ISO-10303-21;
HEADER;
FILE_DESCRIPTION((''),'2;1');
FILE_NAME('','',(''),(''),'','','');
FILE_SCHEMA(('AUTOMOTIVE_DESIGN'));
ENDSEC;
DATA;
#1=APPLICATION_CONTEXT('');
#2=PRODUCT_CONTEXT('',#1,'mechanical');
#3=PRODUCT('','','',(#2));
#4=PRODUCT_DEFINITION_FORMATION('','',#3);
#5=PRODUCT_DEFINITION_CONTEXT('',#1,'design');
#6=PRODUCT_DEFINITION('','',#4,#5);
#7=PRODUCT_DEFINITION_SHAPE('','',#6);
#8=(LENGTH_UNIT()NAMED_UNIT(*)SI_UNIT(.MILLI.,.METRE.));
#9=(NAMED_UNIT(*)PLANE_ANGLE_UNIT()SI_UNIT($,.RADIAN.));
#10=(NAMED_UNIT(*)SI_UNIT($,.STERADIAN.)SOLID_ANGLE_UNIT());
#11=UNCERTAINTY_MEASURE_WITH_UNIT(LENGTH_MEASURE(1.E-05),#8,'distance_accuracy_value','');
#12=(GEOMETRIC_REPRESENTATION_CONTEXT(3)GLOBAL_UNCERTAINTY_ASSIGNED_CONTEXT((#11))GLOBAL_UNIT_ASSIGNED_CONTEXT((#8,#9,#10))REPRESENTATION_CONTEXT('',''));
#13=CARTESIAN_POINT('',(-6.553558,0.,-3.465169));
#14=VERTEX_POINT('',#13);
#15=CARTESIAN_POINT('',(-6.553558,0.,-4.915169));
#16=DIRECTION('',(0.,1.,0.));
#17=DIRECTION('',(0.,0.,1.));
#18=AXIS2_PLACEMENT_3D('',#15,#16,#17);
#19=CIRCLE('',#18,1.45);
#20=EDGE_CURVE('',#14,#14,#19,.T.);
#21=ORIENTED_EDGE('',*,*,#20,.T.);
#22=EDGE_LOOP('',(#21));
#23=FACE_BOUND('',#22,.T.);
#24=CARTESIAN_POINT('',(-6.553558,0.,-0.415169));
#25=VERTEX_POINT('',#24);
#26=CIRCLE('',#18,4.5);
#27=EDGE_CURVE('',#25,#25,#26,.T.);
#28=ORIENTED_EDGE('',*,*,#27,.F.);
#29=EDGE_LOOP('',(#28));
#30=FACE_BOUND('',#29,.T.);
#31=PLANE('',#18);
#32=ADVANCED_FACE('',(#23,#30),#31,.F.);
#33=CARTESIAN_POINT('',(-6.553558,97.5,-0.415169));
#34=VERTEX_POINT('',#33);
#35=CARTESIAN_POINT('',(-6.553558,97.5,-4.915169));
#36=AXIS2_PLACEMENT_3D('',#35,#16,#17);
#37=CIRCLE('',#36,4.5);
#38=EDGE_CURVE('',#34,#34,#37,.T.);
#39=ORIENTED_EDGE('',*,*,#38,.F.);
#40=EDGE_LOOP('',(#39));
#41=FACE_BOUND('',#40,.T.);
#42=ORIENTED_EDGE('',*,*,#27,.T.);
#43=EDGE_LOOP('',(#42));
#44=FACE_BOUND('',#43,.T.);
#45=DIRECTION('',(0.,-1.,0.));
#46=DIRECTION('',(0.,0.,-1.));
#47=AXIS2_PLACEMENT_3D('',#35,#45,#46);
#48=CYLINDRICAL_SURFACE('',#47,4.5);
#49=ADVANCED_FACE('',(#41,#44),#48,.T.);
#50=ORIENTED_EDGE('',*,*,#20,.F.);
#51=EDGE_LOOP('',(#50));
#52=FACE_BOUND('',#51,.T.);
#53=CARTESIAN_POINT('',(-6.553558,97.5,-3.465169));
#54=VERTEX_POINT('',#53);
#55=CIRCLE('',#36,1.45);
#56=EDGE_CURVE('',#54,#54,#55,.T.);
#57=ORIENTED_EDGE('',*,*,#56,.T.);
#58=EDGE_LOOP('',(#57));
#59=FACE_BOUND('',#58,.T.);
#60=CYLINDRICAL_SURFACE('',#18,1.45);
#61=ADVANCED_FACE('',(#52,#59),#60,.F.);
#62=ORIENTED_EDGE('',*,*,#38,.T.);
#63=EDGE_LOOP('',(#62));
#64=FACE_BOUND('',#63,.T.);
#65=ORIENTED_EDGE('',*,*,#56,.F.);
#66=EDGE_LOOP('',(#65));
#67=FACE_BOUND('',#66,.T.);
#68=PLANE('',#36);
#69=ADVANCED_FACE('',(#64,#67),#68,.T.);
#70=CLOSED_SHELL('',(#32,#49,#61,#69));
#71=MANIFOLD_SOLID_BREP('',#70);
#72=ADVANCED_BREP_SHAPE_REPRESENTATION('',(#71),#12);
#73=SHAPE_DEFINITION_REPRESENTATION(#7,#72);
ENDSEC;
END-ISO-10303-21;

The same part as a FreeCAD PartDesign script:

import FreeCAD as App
import Part
import Sketcher
from FreeCAD import Vector
Q = App.Units.Quantity

doc = App.newDocument("Part")
body = doc.addObject("PartDesign::Body", "Body")

sketch1 = doc.addObject("Sketcher::SketchObject", "Sketch")
body.addObject(sketch1)
sketch1.AttachmentSupport = (doc.XZ_Plane, [""])
sketch1.MapMode = "FlatFace"
sketch1.addGeometry(Part.Circle(Vector(-6.553558, -4.915169, 0), Vector(0, 0, 1), 4.5), False)
sketch1.addConstraint(Sketcher.Constraint("Diameter", 0, Q("9 mm")))
sketch1.addConstraint(Sketcher.Constraint("DistanceX", 0, 3, -1, 1, Q("6.553558 mm")))
sketch1.addConstraint(Sketcher.Constraint("DistanceY", 0, 3, -1, 1, Q("4.915169 mm")))
pad1 = doc.addObject("PartDesign::Pad", "Pad")
body.addObject(pad1)
pad1.Profile = sketch1
pad1.Length = 97.5
pad1.Reversed = True

sketch2 = doc.addObject("Sketcher::SketchObject", "Sketch001")
body.addObject(sketch2)
sketch2.AttachmentSupport = (doc.XZ_Plane, [""])
sketch2.MapMode = "FlatFace"
sketch2.AttachmentOffset = App.Placement(Vector(0, 0, -97.5), App.Rotation())
sketch2.addGeometry(Part.Circle(Vector(-6.553558, -4.915169, 0), Vector(0, 0, 1), 1.45), False)
sketch2.addConstraint(Sketcher.Constraint("Diameter", 0, Q("2.9 mm")))
sketch2.addConstraint(Sketcher.Constraint("DistanceX", 0, 3, -1, 1, Q("6.553558 mm")))
sketch2.addConstraint(Sketcher.Constraint("DistanceY", 0, 3, -1, 1, Q("4.915169 mm")))
pocket1 = doc.addObject("PartDesign::Pocket", "Pocket")
body.addObject(pocket1)
pocket1.Profile = sketch2
pocket1.Length = 97.5
pocket1.Reversed = True

doc.recompute()
